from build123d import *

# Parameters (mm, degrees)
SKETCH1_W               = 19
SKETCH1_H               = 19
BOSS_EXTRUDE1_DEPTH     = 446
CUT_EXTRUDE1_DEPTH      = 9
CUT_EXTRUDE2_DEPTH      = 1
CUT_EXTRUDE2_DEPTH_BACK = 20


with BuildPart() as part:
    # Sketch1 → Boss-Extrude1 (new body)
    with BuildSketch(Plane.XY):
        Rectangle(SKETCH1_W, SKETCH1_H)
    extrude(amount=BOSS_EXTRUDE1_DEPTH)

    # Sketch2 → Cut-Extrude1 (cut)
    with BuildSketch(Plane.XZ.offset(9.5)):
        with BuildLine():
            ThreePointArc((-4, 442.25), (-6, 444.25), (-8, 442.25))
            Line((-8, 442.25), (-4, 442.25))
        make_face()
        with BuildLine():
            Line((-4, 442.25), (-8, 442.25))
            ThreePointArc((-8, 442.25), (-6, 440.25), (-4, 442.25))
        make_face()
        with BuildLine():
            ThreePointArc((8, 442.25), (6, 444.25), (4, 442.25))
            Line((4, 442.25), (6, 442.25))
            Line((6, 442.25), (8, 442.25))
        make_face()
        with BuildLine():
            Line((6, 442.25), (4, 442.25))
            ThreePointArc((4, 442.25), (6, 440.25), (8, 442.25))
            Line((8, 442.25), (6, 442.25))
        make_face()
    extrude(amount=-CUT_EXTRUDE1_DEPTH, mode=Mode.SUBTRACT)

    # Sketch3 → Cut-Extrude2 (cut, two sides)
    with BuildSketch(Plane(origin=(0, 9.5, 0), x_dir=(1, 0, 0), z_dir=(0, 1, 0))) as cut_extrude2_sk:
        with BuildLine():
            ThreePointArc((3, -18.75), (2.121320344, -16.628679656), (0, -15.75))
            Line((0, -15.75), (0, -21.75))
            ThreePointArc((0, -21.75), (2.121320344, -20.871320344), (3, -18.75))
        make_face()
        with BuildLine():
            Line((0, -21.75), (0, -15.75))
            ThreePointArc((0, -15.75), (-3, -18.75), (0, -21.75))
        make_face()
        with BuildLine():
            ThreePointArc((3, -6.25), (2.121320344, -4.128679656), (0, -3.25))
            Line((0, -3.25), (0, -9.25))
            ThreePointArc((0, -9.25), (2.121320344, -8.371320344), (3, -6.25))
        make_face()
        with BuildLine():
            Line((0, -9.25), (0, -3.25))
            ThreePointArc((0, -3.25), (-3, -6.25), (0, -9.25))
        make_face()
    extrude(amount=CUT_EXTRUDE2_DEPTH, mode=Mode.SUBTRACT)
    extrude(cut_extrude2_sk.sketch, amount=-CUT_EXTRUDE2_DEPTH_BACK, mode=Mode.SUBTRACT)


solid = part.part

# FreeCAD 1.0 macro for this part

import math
import FreeCAD as App
import Part
import Sketcher

V = App.Vector
Q = App.Units.Quantity


def add_polygon(sketch, points):
    """Adds a closed chain of lines whose ends are joined by coincident constraints."""
    first, n = sketch.GeometryCount, len(points)
    for a, b in zip(points, points[1:] + points[:1]):
        sketch.addGeometry(Part.LineSegment(App.Vector(*a, 0), App.Vector(*b, 0)), False)
    for i in range(n):
        sketch.addConstraint(Sketcher.Constraint("Coincident", first + i, 2, first + (i + 1) % n, 1))

doc = App.newDocument("Part")
params = doc.addObject("Spreadsheet::Sheet", "Params")
for row, (alias, value) in enumerate([
    ("sketch1_width", "19 mm"),
    ("pad1_length", "446 mm"),
    ("sketch2_diameter", "4 mm"),
    ("pocket1_length", "9 mm"),
    ("sketch3_radius", "3 mm"),
], start=1):
    params.set(f"A{row}", alias)
    params.set(f"B{row}", "=" + value)
    params.setAlias(f"B{row}", alias)

body = doc.addObject("PartDesign::Body", "Body")

# Sketch on XY plane
sketch1 = body.newObject("Sketcher::SketchObject", "Sketch")
sketch1.AttachmentSupport = (doc.getObject("XY_Plane"), [""])
sketch1.MapMode = "FlatFace"
add_polygon(sketch1, [(-10, 10), (-10, -10), (10, -10), (10, 10)])  # lines 0-3
sketch1.addConstraint([
    Sketcher.Constraint("Vertical", 0),
    Sketcher.Constraint("Horizontal", 1),
    Sketcher.Constraint("Vertical", 2),
    Sketcher.Constraint("Horizontal", 3),
    Sketcher.Constraint("Symmetric", 0, 2, 2, 2, -1, 1),
    Sketcher.Constraint("Equal", 3, 0),
    Sketcher.Constraint("DistanceX", 1, 1, 1, 2, Q("19 mm")),
])
sketch1.setExpression("Constraints[10]", "Params.sketch1_width")
pad1 = body.newObject("PartDesign::Pad", "Pad")
pad1.Profile = sketch1
pad1.setExpression("Length", "Params.pad1_length")

# Sketch on XZ plane
sketch2 = body.newObject("Sketcher::SketchObject", "Sketch001")
sketch2.AttachmentSupport = (doc.getObject("XZ_Plane"), [""])
sketch2.MapMode = "FlatFace"
sketch2.AttachmentOffset = App.Placement(V(0, 0, 9.5), App.Rotation())
sketch2.addGeometry([
    Part.Circle(V(-6, 442.2, 0), V(0, 0, 1), 2),
    Part.Circle(V(6, 442.2, 0), V(0, 0, 1), 2),
], False)
sketch2.addConstraint([
    Sketcher.Constraint("Equal", 0, 1),
    Sketcher.Constraint("Symmetric", 0, 3, 1, 3, -2),
    Sketcher.Constraint("Diameter", 0, Q("4 mm")),
    Sketcher.Constraint("DistanceX", 0, 3, -1, 1, Q("6 mm")),
    Sketcher.Constraint("DistanceY", -1, 1, 0, 3, Q("442.25 mm")),
])
sketch2.setExpression("Constraints[2]", "Params.sketch2_diameter")
pocket1 = body.newObject("PartDesign::Pocket", "Pocket")
pocket1.Profile = sketch2
pocket1.setExpression("Length", "Params.pocket1_length")

# Sketch on XZ plane
sketch3 = body.newObject("Sketcher::SketchObject", "Sketch002")
sketch3.AttachmentSupport = (doc.getObject("XZ_Plane"), [""])
sketch3.MapMode = "FlatFace"
sketch3.AttachmentOffset = App.Placement(V(0, 0, -9.5), App.Rotation())
sketch3.addGeometry([
    Part.ArcOfCircle(Part.Circle(V(0, 18.7, 0), V(0, 0, 1), 3), math.radians(-90), math.radians(0)),  # 0
    Part.ArcOfCircle(Part.Circle(V(0, 18.8, 0), V(0, 0, 1), 3), math.radians(90), math.radians(270)),  # 1
    Part.ArcOfCircle(Part.Circle(V(0, 18.8, 0), V(0, 0, 1), 3), math.radians(0), math.radians(90)),  # 2
    Part.ArcOfCircle(Part.Circle(V(0, 6.2, 0), V(0, 0, 1), 3), math.radians(-90), math.radians(0)),  # 3
    Part.ArcOfCircle(Part.Circle(V(0, 6.2, 0), V(0, 0, 1), 3), math.radians(90), math.radians(270)),  # 4
    Part.ArcOfCircle(Part.Circle(V(0, 6.3, 0), V(0, 0, 1), 3), math.radians(0), math.radians(90)),  # 5
], False)
sketch3.addConstraint([
    Sketcher.Constraint("Tangent", 0, 1, 1, 2),
    Sketcher.Constraint("Tangent", 1, 1, 2, 2),
    Sketcher.Constraint("Tangent", 2, 1, 0, 2),
    Sketcher.Constraint("Tangent", 3, 1, 4, 2),
    Sketcher.Constraint("Tangent", 4, 1, 5, 2),
    Sketcher.Constraint("Tangent", 5, 1, 3, 2),
    Sketcher.Constraint("Equal", 2, 3),
    Sketcher.Constraint("PointOnObject", 0, 3, -2),
    Sketcher.Constraint("PointOnObject", 3, 3, -2),
    Sketcher.Constraint("PointOnObject", 0, 1, -2),
    Sketcher.Constraint("PointOnObject", 1, 1, -2),
    Sketcher.Constraint("PointOnObject", 3, 1, -2),
    Sketcher.Constraint("PointOnObject", 4, 1, -2),
    Sketcher.Constraint("Horizontal", 1, 3, 2, 1),
    Sketcher.Constraint("Horizontal", 4, 3, 5, 1),
    Sketcher.Constraint("Radius", 0, Q("3 mm")),
    Sketcher.Constraint("DistanceY", 3, 3, 0, 3, Q("12.5 mm")),
    Sketcher.Constraint("DistanceY", -1, 1, 0, 3, Q("18.75 mm")),
])
sketch3.setExpression("Constraints[15]", "Params.sketch3_radius")
pocket2 = body.newObject("PartDesign::Pocket", "Pocket001")
pocket2.Profile = sketch3
pocket2.Type = "ThroughAll"
pocket2.Midplane = True

doc.recompute()
